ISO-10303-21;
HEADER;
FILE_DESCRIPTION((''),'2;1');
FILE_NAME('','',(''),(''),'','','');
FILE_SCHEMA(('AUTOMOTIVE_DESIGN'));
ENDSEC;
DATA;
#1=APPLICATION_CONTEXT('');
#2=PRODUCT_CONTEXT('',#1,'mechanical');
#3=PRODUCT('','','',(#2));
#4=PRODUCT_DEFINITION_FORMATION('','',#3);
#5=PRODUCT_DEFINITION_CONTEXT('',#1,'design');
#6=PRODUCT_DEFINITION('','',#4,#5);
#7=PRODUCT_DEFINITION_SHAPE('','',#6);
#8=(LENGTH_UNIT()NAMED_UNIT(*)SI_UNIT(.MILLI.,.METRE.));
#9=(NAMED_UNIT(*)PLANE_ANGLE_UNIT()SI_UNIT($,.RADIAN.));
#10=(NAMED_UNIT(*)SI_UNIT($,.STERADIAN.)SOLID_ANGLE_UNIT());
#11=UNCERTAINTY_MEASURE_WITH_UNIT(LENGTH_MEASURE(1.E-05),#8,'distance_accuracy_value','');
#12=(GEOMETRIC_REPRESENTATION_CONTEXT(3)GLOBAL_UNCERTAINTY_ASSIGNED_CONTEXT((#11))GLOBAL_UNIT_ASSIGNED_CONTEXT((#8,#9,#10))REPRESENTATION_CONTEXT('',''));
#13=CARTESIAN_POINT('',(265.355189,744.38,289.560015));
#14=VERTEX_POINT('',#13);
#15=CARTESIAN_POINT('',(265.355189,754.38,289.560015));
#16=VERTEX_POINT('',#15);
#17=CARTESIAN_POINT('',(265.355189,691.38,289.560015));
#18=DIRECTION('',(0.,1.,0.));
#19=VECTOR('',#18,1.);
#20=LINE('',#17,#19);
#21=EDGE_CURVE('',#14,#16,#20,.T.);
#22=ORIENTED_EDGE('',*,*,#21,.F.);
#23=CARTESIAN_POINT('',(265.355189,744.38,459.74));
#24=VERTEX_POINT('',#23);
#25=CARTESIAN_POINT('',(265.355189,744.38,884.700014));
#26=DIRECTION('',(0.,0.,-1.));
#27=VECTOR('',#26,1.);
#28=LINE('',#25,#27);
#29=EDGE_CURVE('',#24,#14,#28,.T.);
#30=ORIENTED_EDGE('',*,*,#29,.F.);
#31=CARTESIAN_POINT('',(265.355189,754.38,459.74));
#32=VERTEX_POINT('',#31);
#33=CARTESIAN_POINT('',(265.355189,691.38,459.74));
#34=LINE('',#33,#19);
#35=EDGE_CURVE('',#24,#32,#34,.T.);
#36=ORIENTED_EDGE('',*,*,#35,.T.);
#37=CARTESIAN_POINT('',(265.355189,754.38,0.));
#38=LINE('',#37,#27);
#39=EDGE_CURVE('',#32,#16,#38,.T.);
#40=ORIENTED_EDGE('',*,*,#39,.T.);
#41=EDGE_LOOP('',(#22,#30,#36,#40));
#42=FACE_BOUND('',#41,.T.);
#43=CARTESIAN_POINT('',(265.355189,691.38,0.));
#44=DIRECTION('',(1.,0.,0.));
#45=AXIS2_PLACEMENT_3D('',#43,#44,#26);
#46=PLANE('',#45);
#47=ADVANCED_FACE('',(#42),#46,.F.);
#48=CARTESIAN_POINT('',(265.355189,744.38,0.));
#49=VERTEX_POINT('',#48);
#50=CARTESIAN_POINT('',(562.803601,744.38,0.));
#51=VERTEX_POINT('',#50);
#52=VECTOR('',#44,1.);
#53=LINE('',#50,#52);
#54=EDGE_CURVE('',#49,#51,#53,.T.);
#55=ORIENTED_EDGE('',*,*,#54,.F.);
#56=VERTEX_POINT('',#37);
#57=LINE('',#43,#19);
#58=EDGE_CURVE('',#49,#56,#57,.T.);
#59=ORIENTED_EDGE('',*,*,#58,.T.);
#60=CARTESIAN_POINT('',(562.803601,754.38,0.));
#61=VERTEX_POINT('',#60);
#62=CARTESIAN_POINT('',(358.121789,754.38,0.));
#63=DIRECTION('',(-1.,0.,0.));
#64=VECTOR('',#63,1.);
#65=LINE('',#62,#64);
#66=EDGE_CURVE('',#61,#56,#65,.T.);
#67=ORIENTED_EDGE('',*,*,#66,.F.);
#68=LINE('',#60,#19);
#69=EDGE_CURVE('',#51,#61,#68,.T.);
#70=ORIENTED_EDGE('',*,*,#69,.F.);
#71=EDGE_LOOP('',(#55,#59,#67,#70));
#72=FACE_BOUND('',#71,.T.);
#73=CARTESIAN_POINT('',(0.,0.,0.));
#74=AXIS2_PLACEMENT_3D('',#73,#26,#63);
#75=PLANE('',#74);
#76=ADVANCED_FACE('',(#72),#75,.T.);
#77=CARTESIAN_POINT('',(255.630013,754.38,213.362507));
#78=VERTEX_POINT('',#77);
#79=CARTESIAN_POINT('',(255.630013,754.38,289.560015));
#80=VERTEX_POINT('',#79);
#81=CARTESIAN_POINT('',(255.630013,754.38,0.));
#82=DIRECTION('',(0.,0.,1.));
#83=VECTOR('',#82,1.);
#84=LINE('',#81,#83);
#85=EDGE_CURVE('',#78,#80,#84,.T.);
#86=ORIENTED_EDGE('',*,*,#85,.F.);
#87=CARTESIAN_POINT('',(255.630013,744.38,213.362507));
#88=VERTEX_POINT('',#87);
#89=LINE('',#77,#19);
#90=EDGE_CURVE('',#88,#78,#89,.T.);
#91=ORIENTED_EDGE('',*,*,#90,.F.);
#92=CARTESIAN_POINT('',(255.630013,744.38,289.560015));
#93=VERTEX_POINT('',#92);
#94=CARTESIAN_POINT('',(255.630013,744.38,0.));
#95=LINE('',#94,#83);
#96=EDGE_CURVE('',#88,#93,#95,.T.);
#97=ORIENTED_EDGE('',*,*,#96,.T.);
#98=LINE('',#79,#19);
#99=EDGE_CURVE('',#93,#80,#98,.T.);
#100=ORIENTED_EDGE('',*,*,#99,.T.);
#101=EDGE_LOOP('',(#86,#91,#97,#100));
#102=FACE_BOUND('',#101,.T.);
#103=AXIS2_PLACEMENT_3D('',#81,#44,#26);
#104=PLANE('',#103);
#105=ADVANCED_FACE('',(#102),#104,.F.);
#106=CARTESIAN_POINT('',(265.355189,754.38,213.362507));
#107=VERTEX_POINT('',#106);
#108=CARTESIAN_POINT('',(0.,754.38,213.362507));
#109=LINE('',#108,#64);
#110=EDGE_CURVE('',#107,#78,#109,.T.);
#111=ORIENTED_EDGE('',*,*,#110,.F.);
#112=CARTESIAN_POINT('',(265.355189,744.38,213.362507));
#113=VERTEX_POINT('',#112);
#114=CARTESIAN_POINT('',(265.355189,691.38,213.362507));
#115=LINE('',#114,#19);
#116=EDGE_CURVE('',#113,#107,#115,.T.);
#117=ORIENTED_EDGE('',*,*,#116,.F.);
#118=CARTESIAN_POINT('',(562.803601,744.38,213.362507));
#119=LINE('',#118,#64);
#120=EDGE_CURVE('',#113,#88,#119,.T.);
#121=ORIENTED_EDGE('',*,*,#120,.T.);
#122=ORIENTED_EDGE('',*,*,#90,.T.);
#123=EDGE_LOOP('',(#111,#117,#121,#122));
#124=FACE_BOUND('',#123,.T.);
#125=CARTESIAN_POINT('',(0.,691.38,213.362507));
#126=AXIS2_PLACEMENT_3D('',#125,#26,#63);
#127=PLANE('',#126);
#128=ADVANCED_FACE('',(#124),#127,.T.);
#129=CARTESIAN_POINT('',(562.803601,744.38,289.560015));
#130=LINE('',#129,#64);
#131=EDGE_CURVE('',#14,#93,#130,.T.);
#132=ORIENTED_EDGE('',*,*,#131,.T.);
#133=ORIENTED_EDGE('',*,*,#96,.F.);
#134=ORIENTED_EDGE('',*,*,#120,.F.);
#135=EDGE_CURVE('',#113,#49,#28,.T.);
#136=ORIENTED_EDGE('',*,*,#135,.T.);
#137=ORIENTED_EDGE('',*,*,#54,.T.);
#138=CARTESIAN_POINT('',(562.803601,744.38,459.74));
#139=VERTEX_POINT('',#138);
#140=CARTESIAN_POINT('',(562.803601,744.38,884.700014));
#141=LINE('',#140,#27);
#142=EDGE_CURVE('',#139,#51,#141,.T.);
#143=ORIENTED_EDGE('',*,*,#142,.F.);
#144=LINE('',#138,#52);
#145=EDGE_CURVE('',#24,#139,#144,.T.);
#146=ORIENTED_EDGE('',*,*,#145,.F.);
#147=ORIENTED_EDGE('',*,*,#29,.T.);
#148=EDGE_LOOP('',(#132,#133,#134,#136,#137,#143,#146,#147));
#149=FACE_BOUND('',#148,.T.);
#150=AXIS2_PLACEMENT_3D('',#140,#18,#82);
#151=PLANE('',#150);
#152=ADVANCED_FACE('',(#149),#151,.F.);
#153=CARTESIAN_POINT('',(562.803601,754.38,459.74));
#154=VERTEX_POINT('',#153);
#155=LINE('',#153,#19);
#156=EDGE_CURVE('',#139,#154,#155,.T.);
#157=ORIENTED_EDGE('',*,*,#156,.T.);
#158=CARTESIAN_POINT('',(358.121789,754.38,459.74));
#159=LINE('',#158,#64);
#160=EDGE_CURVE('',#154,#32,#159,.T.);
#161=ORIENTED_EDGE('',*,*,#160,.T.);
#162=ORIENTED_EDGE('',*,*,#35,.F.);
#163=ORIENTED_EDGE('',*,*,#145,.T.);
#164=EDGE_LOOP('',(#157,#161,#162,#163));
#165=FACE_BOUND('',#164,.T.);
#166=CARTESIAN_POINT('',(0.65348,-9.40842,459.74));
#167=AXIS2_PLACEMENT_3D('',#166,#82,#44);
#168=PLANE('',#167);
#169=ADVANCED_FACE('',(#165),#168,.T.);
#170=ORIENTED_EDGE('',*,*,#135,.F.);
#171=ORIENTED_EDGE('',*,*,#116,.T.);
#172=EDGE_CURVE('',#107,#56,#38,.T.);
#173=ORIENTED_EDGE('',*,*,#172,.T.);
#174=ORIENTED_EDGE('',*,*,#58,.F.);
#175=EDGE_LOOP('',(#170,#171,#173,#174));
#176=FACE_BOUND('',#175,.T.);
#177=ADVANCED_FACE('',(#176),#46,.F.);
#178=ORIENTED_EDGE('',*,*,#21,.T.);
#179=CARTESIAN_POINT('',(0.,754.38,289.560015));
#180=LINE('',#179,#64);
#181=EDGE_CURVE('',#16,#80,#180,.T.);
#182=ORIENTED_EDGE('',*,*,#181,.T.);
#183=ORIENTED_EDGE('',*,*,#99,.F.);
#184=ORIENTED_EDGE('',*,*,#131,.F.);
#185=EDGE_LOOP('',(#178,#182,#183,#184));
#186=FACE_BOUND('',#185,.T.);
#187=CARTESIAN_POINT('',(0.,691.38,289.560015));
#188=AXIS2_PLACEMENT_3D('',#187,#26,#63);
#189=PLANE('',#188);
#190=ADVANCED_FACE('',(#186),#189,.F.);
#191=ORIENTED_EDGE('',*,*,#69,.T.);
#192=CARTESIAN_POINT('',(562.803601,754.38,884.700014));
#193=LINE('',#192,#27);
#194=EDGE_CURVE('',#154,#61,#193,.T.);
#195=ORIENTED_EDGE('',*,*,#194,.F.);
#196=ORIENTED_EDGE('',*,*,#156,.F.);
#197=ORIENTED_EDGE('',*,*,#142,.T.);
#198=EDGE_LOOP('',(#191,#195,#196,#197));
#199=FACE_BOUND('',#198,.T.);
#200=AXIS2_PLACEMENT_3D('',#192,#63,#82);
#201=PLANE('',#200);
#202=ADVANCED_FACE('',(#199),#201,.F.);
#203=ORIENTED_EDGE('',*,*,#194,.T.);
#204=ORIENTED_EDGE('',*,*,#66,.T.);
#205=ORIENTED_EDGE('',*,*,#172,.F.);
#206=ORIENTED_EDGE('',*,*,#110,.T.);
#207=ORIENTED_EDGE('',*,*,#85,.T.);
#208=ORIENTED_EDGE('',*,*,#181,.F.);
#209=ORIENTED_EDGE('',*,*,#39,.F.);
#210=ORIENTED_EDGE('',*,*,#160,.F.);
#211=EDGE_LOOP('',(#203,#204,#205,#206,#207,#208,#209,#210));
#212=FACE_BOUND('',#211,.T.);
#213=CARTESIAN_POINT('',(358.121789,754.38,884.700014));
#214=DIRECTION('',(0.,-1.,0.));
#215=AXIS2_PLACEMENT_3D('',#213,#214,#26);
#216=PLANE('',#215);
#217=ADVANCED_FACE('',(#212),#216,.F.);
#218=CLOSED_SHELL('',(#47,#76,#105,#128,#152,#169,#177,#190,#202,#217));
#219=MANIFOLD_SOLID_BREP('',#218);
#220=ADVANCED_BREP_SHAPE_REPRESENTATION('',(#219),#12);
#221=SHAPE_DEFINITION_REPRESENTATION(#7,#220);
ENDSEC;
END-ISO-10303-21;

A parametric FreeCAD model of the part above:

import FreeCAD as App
import Part
import Sketcher
Q = App.Units.Quantity

doc = App.newDocument("Part")
body = doc.addObject("PartDesign::Body", "Body")

# Sketch on XY plane
sketch1 = body.newObject("Sketcher::SketchObject", "Sketch")
sketch1.AttachmentSupport = (doc.getObject("XY_Plane"), [""])
sketch1.MapMode = "FlatFace"
sketch1.addGeometry([
    Part.LineSegment(App.Vector(138, 754, 0), App.Vector(138, 744, 0)),
    Part.LineSegment(App.Vector(138, 744, 0), App.Vector(563, 744, 0)),
    Part.LineSegment(App.Vector(563, 744, 0), App.Vector(563, 754, 0)),
    Part.LineSegment(App.Vector(563, 754, 0), App.Vector(138, 754, 0)),
], False)
sketch1.addConstraint([
    Sketcher.Constraint("Coincident", 0, 2, 1, 1),
    Sketcher.Constraint("Coincident", 1, 2, 2, 1),
    Sketcher.Constraint("Coincident", 2, 2, 3, 1),
    Sketcher.Constraint("Coincident", 3, 2, 0, 1),
    Sketcher.Constraint("Vertical", 0),
    Sketcher.Constraint("Horizontal", 1),
    Sketcher.Constraint("Vertical", 2),
    Sketcher.Constraint("Horizontal", 3),
    Sketcher.Constraint("DistanceY", 0, 2, 0, 1, Q("10 mm")),
    Sketcher.Constraint("DistanceY", -1, 1, 0, 2, Q("744.38 mm")),
    Sketcher.Constraint("DistanceX", 1, 1, 1, 2, Q("424.84234 mm")),
    Sketcher.Constraint("DistanceX", -1, 1, 1, 2, Q("562.803601 mm")),
])
pad1 = body.newObject("PartDesign::Pad", "Pad")
pad1.Profile = sketch1
pad1.Length = 459.74

# Sketch on XZ plane
sketch2 = body.newObject("Sketcher::SketchObject", "Sketch001")
sketch2.AttachmentSupport = (doc.getObject("XZ_Plane"), [""])
sketch2.MapMode = "FlatFace"
sketch2.AttachmentOffset = App.Placement(App.Vector(0, 0, -744.38), App.Rotation())
sketch2.addGeometry([
    Part.LineSegment(App.Vector(138, 460, 0), App.Vector(138, 0, 0)),
    Part.LineSegment(App.Vector(138, 0, 0), App.Vector(256, 0, 0)),
    Part.LineSegment(App.Vector(256, 0, 0), App.Vector(256, 460, 0)),
    Part.LineSegment(App.Vector(256, 460, 0), App.Vector(138, 460, 0)),
], False)
sketch2.addConstraint([
    Sketcher.Constraint("Coincident", 0, 2, 1, 1),
    Sketcher.Constraint("Coincident", 1, 2, 2, 1),
    Sketcher.Constraint("Coincident", 2, 2, 3, 1),
    Sketcher.Constraint("Coincident", 3, 2, 0, 1),
    Sketcher.Constraint("Vertical", 0),
    Sketcher.Constraint("Horizontal", 1),
    Sketcher.Constraint("Vertical", 2),
    Sketcher.Constraint("Horizontal", 3),
    Sketcher.Constraint("PointOnObject", 0, 2, -1),
    Sketcher.Constraint("DistanceY", 0, 2, 0, 1, Q("459.74 mm")),
    Sketcher.Constraint("DistanceX", 1, 1, 1, 2, Q("117.668752 mm")),
    Sketcher.Constraint("DistanceX", -1, 1, 0, 2, Q("137.961261 mm")),
])
pocket1 = body.newObject("PartDesign::Pocket", "Pocket")
pocket1.Profile = sketch2
pocket1.Length = 10

# Sketch on XZ plane
sketch3 = body.newObject("Sketcher::SketchObject", "Sketch002")
sketch3.AttachmentSupport = (doc.getObject("XZ_Plane"), [""])
sketch3.MapMode = "FlatFace"
sketch3.AttachmentOffset = App.Placement(App.Vector(0, 0, -754.38), App.Rotation())
sketch3.addGeometry([
    Part.LineSegment(App.Vector(256, 290, 0), App.Vector(256, 460, 0)),  # 0
    Part.LineSegment(App.Vector(256, 460, 0), App.Vector(265, 460, 0)),  # 1
    Part.LineSegment(App.Vector(265, 460, 0), App.Vector(265, 290, 0)),  # 2
    Part.LineSegment(App.Vector(265, 290, 0), App.Vector(256, 290, 0)),  # 3
    Part.LineSegment(App.Vector(256, 0, 0), App.Vector(256, 213, 0)),  # 4
    Part.LineSegment(App.Vector(256, 213, 0), App.Vector(265, 213, 0)),  # 5
    Part.LineSegment(App.Vector(265, 213, 0), App.Vector(265, 0, 0)),  # 6
    Part.LineSegment(App.Vector(265, 0, 0), App.Vector(256, 0, 0)),  # 7
], False)
sketch3.addConstraint([
    Sketcher.Constraint("Coincident", 0, 2, 1, 1),
    Sketcher.Constraint("Coincident", 1, 2, 2, 1),
    Sketcher.Constraint("Coincident", 2, 2, 3, 1),
    Sketcher.Constraint("Coincident", 3, 2, 0, 1),
    Sketcher.Constraint("Coincident", 4, 2, 5, 1),
    Sketcher.Constraint("Coincident", 5, 2, 6, 1),
    Sketcher.Constraint("Coincident", 6, 2, 7, 1),
    Sketcher.Constraint("Coincident", 7, 2, 4, 1),
    Sketcher.Constraint("Vertical", 0),
    Sketcher.Constraint("Horizontal", 1),
    Sketcher.Constraint("Vertical", 2),
    Sketcher.Constraint("Horizontal", 3),
    Sketcher.Constraint("Vertical", 4),
    Sketcher.Constraint("Horizontal", 5),
    Sketcher.Constraint("Vertical", 6),
    Sketcher.Constraint("Horizontal", 7),
    Sketcher.Constraint("PointOnObject", 6, 2, -1),
    Sketcher.Constraint("Vertical", 3, 2, 4, 2),
    Sketcher.Constraint("Vertical", 2, 2, 5, 2),
    Sketcher.Constraint("DistanceY", -1, 1, 0, 2, Q("459.74 mm")),
    Sketcher.Constraint("DistanceX", 1, 1, 1, 2, Q("9.725175 mm")),
    Sketcher.Constraint("DistanceY", 0, 1, 0, 2, Q("170.179985 mm")),
    Sketcher.Constraint("DistanceY", 4, 1, 4, 2, Q("213.362507 mm")),
    Sketcher.Constraint("DistanceX", -1, 1, 1, 2, Q("265.355189 mm")),
])
pocket2 = body.newObject("PartDesign::Pocket", "Pocket001")
pocket2.Profile = sketch3
pocket2.Length = 63
pocket2.Reversed = True

doc.recompute()
